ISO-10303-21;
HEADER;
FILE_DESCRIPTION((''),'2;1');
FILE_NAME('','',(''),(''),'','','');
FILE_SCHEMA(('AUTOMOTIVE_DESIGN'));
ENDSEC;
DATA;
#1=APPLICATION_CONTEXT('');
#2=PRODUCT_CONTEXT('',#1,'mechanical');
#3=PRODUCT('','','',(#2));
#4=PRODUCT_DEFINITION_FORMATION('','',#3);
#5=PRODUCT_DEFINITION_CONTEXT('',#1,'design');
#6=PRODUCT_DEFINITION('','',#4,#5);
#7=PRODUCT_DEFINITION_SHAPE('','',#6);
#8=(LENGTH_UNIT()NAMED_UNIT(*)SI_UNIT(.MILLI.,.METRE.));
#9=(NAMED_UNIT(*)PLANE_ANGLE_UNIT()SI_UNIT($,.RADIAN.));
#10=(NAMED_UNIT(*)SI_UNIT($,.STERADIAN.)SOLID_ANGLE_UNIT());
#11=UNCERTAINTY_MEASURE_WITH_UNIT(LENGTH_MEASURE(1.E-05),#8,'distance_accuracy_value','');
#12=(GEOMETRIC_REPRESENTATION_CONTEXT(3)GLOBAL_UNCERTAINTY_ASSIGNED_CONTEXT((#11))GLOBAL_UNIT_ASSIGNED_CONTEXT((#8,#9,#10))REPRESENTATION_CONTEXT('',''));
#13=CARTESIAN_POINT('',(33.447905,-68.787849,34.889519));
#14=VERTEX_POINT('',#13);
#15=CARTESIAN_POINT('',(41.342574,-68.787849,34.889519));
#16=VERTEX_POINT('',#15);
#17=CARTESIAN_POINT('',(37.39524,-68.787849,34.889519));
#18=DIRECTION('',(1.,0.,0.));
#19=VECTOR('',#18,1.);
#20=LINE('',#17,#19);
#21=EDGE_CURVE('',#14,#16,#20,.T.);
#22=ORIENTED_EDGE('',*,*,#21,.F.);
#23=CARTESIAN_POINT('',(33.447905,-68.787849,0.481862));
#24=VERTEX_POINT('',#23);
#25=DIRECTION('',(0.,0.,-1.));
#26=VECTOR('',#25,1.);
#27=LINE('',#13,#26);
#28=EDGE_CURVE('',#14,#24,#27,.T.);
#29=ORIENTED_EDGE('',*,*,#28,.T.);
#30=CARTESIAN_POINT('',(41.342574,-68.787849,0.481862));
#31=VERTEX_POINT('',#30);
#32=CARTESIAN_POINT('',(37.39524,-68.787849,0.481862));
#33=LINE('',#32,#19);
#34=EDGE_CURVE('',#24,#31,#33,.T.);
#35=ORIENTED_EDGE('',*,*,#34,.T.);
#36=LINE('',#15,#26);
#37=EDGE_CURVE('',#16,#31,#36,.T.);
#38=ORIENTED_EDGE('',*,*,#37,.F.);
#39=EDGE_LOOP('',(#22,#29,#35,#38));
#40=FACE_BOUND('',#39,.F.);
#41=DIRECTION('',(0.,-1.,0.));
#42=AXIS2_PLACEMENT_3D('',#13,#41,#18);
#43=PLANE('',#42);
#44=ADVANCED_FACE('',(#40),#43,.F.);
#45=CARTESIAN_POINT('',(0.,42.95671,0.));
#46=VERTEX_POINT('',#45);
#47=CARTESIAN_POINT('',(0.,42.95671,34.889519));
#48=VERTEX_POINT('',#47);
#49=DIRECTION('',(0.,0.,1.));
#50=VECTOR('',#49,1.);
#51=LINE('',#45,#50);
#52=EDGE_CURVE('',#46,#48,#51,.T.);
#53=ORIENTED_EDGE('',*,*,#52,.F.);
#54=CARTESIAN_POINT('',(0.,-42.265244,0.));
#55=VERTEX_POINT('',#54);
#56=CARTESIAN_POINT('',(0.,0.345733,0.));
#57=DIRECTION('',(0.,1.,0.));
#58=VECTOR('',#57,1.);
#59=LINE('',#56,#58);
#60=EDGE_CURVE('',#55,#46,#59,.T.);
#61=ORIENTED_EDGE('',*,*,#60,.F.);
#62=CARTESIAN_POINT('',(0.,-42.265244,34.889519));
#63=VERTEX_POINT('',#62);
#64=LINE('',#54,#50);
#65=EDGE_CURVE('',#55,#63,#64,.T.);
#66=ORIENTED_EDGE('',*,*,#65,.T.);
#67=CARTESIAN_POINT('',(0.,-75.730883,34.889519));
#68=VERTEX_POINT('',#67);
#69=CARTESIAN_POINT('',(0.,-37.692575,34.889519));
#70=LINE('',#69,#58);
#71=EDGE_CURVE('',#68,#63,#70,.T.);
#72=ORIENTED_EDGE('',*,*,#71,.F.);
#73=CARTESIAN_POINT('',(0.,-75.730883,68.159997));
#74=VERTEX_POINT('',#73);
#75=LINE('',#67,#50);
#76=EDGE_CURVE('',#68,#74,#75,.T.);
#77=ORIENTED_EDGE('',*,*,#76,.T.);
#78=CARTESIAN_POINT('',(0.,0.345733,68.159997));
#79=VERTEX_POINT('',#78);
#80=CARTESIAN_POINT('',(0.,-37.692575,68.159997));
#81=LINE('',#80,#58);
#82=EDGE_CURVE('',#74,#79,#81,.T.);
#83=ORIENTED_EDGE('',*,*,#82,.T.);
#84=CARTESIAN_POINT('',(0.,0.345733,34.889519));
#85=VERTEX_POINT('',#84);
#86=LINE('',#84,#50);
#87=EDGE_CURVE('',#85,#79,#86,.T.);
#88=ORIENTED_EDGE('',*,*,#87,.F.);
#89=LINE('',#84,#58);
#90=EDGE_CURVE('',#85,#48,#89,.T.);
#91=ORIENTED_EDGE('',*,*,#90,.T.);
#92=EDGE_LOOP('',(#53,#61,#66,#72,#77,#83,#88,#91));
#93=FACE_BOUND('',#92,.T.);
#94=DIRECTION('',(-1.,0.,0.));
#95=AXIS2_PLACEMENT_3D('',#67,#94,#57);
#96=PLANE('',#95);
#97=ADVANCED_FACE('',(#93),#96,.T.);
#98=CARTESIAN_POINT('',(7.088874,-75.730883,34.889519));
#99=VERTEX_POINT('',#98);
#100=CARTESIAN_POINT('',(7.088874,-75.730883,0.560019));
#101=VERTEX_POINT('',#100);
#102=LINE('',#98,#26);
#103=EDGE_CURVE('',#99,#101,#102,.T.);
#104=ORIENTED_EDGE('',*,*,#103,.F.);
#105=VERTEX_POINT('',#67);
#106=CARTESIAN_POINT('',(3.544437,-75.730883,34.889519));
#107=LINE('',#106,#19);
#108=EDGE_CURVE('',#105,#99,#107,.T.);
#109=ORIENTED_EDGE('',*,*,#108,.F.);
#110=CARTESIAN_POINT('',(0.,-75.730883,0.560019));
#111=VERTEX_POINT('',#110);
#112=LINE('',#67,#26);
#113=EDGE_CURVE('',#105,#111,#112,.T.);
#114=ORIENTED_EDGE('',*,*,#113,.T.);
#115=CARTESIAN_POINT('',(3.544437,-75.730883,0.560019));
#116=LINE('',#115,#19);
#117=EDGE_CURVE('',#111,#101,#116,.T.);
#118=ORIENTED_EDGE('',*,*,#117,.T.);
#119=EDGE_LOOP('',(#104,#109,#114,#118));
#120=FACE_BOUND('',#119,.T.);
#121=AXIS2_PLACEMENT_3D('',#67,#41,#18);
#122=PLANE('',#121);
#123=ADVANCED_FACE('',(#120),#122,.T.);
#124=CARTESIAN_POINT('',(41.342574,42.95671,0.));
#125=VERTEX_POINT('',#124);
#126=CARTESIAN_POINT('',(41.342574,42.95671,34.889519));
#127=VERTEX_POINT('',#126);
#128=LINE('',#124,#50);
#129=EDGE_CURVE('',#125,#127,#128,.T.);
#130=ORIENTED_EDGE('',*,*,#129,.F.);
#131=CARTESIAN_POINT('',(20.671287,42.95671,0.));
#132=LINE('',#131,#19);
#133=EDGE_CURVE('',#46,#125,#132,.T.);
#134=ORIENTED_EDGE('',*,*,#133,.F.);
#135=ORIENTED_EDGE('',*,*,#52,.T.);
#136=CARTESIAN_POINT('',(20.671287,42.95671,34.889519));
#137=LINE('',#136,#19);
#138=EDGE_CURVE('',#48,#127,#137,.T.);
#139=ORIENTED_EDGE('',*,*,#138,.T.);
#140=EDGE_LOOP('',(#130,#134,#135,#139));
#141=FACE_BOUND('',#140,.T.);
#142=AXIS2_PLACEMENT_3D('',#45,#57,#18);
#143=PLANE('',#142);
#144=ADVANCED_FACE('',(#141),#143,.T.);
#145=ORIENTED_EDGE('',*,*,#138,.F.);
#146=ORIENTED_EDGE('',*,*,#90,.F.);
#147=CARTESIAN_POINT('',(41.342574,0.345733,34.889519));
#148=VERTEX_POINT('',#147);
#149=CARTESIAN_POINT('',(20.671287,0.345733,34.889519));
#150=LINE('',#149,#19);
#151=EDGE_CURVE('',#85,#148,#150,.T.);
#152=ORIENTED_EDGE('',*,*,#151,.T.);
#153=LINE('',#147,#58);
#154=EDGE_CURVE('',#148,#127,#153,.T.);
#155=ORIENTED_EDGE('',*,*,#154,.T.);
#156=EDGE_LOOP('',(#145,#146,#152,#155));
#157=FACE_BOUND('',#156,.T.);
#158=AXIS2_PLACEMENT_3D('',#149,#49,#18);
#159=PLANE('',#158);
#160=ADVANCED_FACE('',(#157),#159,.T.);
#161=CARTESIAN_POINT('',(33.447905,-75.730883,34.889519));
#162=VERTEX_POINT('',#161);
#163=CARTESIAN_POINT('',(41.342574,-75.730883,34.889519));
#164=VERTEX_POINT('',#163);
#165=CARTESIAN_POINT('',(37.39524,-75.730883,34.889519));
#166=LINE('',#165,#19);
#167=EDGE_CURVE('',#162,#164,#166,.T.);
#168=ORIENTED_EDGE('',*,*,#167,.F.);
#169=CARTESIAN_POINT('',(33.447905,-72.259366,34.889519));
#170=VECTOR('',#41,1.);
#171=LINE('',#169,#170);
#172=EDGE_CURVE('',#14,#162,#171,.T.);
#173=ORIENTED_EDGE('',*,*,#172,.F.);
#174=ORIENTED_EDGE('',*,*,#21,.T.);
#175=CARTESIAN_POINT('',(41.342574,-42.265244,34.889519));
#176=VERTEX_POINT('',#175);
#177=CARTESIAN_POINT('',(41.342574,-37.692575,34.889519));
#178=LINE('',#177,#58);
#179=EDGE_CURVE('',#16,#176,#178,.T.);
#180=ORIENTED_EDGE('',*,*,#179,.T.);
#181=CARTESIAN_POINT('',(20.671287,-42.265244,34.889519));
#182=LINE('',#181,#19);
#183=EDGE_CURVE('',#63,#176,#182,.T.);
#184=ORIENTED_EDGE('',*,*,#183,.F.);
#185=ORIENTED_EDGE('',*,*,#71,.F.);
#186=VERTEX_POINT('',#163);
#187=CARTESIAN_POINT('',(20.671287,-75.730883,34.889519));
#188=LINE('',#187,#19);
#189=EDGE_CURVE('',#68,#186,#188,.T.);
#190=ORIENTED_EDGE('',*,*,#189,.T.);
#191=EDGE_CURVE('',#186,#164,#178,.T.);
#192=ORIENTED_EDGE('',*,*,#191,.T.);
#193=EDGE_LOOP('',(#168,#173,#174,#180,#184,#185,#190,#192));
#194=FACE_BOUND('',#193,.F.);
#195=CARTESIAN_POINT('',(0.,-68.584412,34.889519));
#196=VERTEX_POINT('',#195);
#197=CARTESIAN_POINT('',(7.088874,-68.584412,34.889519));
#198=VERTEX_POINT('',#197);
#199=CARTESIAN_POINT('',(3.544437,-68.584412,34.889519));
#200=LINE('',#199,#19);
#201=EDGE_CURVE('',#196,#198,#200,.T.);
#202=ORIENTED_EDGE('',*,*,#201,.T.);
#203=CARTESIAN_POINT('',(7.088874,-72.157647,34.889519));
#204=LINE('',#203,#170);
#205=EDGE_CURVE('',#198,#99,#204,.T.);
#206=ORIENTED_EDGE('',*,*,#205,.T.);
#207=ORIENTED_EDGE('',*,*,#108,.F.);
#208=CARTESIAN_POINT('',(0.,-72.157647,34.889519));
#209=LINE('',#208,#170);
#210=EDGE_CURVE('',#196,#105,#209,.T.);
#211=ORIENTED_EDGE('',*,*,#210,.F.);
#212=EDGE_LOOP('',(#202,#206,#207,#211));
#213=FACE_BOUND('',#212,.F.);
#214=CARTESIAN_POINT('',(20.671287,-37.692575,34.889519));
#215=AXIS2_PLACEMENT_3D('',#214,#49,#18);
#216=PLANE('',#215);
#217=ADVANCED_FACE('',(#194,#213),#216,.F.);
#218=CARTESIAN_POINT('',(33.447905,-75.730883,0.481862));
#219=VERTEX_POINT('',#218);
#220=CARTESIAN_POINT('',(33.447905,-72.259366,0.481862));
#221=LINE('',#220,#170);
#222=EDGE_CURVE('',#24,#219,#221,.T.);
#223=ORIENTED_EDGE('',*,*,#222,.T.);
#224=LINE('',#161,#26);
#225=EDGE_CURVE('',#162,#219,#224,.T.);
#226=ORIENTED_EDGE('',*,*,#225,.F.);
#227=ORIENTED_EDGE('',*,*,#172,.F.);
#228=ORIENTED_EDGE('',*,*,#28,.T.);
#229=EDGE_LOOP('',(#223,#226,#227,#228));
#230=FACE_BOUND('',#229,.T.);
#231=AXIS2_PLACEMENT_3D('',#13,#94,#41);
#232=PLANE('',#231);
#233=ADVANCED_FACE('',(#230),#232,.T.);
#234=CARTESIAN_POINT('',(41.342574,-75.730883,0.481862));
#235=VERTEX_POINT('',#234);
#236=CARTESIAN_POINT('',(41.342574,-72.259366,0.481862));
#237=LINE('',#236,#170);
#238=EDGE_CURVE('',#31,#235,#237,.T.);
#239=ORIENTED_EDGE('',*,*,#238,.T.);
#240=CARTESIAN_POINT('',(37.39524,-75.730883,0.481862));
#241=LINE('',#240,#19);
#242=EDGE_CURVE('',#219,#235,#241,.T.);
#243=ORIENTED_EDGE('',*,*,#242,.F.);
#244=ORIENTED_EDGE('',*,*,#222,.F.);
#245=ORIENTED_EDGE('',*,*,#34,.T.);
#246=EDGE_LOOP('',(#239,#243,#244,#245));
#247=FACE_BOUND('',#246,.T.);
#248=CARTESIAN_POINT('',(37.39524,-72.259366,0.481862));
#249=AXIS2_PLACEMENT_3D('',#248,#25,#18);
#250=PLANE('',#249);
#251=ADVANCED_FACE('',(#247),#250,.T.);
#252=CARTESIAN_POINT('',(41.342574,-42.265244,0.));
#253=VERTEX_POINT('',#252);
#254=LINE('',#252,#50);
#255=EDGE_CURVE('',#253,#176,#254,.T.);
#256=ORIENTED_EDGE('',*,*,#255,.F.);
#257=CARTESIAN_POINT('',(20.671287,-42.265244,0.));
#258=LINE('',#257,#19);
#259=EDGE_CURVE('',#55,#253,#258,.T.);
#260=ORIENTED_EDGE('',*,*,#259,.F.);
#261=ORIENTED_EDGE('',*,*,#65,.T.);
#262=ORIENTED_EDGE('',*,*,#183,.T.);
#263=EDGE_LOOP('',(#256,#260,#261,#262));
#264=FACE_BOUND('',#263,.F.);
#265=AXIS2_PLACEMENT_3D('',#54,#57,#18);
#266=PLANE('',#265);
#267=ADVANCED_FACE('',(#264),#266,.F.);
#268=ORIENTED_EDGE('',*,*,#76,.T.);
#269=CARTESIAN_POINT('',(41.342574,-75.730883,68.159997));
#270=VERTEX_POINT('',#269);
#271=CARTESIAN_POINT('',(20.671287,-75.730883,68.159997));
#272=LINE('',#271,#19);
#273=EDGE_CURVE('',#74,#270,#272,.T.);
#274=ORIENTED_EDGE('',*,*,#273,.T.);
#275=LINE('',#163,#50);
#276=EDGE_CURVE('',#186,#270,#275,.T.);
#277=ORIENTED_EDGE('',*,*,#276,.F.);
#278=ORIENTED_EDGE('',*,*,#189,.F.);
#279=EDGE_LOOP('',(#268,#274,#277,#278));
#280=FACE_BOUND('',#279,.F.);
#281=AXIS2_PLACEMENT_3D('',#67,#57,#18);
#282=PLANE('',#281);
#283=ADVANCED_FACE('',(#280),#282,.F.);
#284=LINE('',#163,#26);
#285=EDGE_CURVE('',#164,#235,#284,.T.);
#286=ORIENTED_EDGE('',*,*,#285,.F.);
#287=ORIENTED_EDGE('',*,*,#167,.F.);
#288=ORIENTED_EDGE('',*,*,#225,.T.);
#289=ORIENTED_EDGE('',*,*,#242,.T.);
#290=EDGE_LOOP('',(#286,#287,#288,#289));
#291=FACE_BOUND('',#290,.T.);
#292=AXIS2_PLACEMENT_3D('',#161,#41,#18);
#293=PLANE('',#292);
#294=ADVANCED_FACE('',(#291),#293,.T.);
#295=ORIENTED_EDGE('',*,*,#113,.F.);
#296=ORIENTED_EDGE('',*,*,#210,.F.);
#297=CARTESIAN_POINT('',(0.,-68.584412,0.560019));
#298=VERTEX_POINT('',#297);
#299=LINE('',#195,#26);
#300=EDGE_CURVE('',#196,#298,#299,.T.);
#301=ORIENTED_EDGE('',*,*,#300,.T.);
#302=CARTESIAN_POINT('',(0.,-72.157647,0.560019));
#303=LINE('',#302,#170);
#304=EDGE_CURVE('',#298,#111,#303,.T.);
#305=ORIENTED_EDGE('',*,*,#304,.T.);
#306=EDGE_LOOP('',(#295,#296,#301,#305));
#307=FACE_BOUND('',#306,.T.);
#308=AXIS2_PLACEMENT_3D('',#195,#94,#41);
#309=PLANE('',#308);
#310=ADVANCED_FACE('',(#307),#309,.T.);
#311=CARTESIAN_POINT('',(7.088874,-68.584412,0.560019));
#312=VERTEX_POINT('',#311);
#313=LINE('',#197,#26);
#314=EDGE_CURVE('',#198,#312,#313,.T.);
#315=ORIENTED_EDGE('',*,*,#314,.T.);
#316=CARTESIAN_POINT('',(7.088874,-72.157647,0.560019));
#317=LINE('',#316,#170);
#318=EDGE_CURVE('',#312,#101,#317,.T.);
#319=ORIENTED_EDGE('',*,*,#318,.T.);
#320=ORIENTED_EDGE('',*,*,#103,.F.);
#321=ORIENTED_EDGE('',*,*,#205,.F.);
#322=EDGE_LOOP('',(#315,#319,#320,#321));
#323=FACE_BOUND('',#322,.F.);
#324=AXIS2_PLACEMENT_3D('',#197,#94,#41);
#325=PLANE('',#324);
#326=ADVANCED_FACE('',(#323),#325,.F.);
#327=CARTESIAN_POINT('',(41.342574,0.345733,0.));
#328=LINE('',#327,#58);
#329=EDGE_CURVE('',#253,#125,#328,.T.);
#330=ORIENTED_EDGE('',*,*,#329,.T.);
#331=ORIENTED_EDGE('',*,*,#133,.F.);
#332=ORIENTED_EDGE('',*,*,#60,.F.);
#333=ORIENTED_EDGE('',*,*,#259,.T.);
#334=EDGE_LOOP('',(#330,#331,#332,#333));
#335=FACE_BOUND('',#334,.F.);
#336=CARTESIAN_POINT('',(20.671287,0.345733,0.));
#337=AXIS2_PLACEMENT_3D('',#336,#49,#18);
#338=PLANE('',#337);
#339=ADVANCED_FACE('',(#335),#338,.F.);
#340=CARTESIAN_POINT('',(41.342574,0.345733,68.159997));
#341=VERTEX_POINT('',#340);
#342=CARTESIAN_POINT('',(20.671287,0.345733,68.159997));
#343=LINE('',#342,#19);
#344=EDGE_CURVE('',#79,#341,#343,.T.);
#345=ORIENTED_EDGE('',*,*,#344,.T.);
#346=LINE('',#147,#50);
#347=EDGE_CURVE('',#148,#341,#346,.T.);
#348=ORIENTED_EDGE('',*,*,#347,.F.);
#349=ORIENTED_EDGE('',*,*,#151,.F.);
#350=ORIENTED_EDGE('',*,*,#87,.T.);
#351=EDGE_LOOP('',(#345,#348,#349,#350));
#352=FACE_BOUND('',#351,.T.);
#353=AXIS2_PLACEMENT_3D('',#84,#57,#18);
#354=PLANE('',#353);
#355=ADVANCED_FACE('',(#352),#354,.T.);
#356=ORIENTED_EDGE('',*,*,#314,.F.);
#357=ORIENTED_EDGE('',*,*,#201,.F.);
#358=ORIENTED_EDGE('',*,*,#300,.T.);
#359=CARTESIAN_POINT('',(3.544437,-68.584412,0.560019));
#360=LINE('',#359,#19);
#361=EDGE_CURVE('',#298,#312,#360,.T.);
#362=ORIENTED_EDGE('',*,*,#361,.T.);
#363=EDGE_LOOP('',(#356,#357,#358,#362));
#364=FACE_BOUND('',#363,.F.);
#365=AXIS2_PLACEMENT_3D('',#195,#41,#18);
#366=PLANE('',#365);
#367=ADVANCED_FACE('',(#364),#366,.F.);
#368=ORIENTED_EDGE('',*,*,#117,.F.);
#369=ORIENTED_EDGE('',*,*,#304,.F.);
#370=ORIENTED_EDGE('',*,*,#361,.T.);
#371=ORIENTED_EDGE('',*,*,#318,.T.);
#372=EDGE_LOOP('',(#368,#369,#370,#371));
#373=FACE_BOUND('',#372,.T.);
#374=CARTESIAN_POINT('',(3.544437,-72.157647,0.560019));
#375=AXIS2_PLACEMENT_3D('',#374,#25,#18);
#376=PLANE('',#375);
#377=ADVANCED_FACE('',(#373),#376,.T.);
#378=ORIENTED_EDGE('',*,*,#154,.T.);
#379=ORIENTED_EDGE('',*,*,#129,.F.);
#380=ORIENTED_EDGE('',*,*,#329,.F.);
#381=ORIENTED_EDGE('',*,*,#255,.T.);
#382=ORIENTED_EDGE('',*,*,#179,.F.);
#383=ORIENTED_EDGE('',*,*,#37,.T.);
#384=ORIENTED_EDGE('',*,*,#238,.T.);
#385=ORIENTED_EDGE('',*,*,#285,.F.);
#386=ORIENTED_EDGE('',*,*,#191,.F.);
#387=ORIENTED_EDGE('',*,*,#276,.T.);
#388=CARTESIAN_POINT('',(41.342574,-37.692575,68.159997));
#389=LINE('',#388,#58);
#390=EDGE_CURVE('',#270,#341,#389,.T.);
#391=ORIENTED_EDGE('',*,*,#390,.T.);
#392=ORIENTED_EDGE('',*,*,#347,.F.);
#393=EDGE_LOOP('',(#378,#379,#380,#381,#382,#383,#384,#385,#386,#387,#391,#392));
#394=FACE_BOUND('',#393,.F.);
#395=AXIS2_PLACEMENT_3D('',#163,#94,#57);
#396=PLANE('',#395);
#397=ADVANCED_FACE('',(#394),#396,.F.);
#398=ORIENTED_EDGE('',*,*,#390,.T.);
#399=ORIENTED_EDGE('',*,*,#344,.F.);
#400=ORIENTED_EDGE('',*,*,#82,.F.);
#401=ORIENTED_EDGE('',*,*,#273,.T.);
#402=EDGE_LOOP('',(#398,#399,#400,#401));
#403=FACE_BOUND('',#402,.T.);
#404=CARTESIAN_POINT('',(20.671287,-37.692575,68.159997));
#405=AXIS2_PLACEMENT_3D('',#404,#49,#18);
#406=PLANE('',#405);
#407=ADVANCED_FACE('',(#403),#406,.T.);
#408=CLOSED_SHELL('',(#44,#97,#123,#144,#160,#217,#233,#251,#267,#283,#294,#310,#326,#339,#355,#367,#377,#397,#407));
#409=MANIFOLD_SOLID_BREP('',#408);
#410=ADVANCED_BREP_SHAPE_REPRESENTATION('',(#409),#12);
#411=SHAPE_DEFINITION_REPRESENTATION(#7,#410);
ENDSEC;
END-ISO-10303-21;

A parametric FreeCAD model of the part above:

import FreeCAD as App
import Part
import Sketcher

doc = App.newDocument("Part")
body = doc.addObject("PartDesign::Body", "Body")

# Sketch on XY plane
sketch1 = doc.addObject("Sketcher::SketchObject", "Sketch")
body.addObject(sketch1)
sketch1.AttachmentSupport = (doc.XY_Plane, [""])
sketch1.MapMode = "FlatFace"
sketch1.addGeometry(Part.LineSegment(App.Vector(0, 42.95671, 0), App.Vector(0, -42.265244, 0)), False)
sketch1.addGeometry(Part.LineSegment(App.Vector(0, -42.265244, 0), App.Vector(41.342574, -42.265244, 0)), False)
sketch1.addGeometry(Part.LineSegment(App.Vector(41.342574, -42.265244, 0), App.Vector(41.342574, 42.95671, 0)), False)
sketch1.addGeometry(Part.LineSegment(App.Vector(41.342574, 42.95671, 0), App.Vector(0, 42.95671, 0)), False)
sketch1.addConstraint(Sketcher.Constraint("Coincident", 0, 2, 1, 1))
sketch1.addConstraint(Sketcher.Constraint("Coincident", 1, 2, 2, 1))
sketch1.addConstraint(Sketcher.Constraint("Coincident", 2, 2, 3, 1))
sketch1.addConstraint(Sketcher.Constraint("Coincident", 3, 2, 0, 1))
sketch1.addConstraint(Sketcher.Constraint("Vertical", 0))
sketch1.addConstraint(Sketcher.Constraint("Horizontal", 1))
sketch1.addConstraint(Sketcher.Constraint("Vertical", 2))
sketch1.addConstraint(Sketcher.Constraint("Horizontal", 3))
sketch1.addConstraint(Sketcher.Constraint("PointOnObject", 0, 2, -2))
sketch1.addConstraint(Sketcher.Constraint("DistanceX", 1, 1, 1, 2, 41.342575))
sketch1.addConstraint(Sketcher.Constraint("DistanceY", 0, 2, 0, 1, 85.221954))
sketch1.addConstraint(Sketcher.Constraint("DistanceY", -1, 1, 2, 2, 42.95671))
pad1 = doc.addObject("PartDesign::Pad", "Pad")
body.addObject(pad1)
pad1.Profile = sketch1
pad1.Length = 34.889519

# Sketch on XY plane
sketch2 = doc.addObject("Sketcher::SketchObject", "Sketch001")
body.addObject(sketch2)
sketch2.AttachmentSupport = (doc.XY_Plane, [""])
sketch2.MapMode = "FlatFace"
sketch2.AttachmentOffset = App.Placement(App.Vector(0, 0, 34.889519), App.Rotation())
sketch2.addGeometry(Part.LineSegment(App.Vector(0, 0.345733, 0), App.Vector(0, -75.730883, 0)), False)
sketch2.addGeometry(Part.LineSegment(App.Vector(0, -75.730883, 0), App.Vector(41.342574, -75.730883, 0)), False)
sketch2.addGeometry(Part.LineSegment(App.Vector(41.342574, -75.730883, 0), App.Vector(41.342574, 0.345733, 0)), False)
sketch2.addGeometry(Part.LineSegment(App.Vector(41.342574, 0.345733, 0), App.Vector(0, 0.345733, 0)), False)
sketch2.addConstraint(Sketcher.Constraint("Coincident", 0, 2, 1, 1))
sketch2.addConstraint(Sketcher.Constraint("Coincident", 1, 2, 2, 1))
sketch2.addConstraint(Sketcher.Constraint("Coincident", 2, 2, 3, 1))
sketch2.addConstraint(Sketcher.Constraint("Coincident", 3, 2, 0, 1))
sketch2.addConstraint(Sketcher.Constraint("Vertical", 0))
sketch2.addConstraint(Sketcher.Constraint("Horizontal", 1))
sketch2.addConstraint(Sketcher.Constraint("Vertical", 2))
sketch2.addConstraint(Sketcher.Constraint("Horizontal", 3))
sketch2.addConstraint(Sketcher.Constraint("PointOnObject", 0, 2, -2))
sketch2.addConstraint(Sketcher.Constraint("DistanceX", 1, 1, 1, 2, 41.342575))
sketch2.addConstraint(Sketcher.Constraint("DistanceY", 0, 2, 0, 1, 76.076616))
sketch2.addConstraint(Sketcher.Constraint("DistanceY", 0, 2, -1, 1, 75.730883))
pad2 = doc.addObject("PartDesign::Pad", "Pad001")
body.addObject(pad2)
pad2.Profile = sketch2
pad2.Length = 33.270478

# Sketch on XY plane
sketch3 = doc.addObject("Sketcher::SketchObject", "Sketch002")
body.addObject(sketch3)
sketch3.AttachmentSupport = (doc.XY_Plane, [""])
sketch3.MapMode = "FlatFace"
sketch3.AttachmentOffset = App.Placement(App.Vector(0, 0, 34.889519), App.Rotation())
sketch3.addGeometry(Part.LineSegment(App.Vector(0, -75.730883, 0), App.Vector(0, -68.584412, 0)), False)
sketch3.addGeometry(Part.LineSegment(App.Vector(0, -68.584412, 0), App.Vector(7.088874, -68.584412, 0)), False)
sketch3.addGeometry(Part.LineSegment(App.Vector(7.088874, -68.584412, 0), App.Vector(7.088874, -75.730883, 0)), False)
sketch3.addGeometry(Part.LineSegment(App.Vector(7.088874, -75.730883, 0), App.Vector(0, -75.730883, 0)), False)
sketch3.addConstraint(Sketcher.Constraint("Coincident", 0, 2, 1, 1))
sketch3.addConstraint(Sketcher.Constraint("Coincident", 1, 2, 2, 1))
sketch3.addConstraint(Sketcher.Constraint("Coincident", 2, 2, 3, 1))
sketch3.addConstraint(Sketcher.Constraint("Coincident", 3, 2, 0, 1))
sketch3.addConstraint(Sketcher.Constraint("Vertical", 0))
sketch3.addConstraint(Sketcher.Constraint("Horizontal", 1))
sketch3.addConstraint(Sketcher.Constraint("Vertical", 2))
sketch3.addConstraint(Sketcher.Constraint("Horizontal", 3))
sketch3.addConstraint(Sketcher.Constraint("PointOnObject", 0, 2, -2))
sketch3.addConstraint(Sketcher.Constraint("DistanceY", 0, 1, 0, 2, 7.146471))
sketch3.addConstraint(Sketcher.Constraint("DistanceX", 1, 1, 1, 2, 7.088874))
sketch3.addConstraint(Sketcher.Constraint("DistanceY", 0, 2, -1, 1, 68.584412))
pad3 = doc.addObject("PartDesign::Pad", "Pad002")
body.addObject(pad3)
pad3.Profile = sketch3
pad3.Length = 34.3295
pad3.Reversed = True

# Sketch on XY plane
sketch4 = doc.addObject("Sketcher::SketchObject", "Sketch003")
body.addObject(sketch4)
sketch4.AttachmentSupport = (doc.XY_Plane, [""])
sketch4.MapMode = "FlatFace"
sketch4.AttachmentOffset = App.Placement(App.Vector(0, 0, 34.889519), App.Rotation())
sketch4.addGeometry(Part.LineSegment(App.Vector(33.447905, -75.730883, 0), App.Vector(33.447905, -68.787849, 0)), False)
sketch4.addGeometry(Part.LineSegment(App.Vector(33.447905, -68.787849, 0), App.Vector(41.342574, -68.787849, 0)), False)
sketch4.addGeometry(Part.LineSegment(App.Vector(41.342574, -68.787849, 0), App.Vector(41.342574, -75.730883, 0)), False)
sketch4.addGeometry(Part.LineSegment(App.Vector(41.342574, -75.730883, 0), App.Vector(33.447905, -75.730883, 0)), False)
sketch4.addConstraint(Sketcher.Constraint("Coincident", 0, 2, 1, 1))
sketch4.addConstraint(Sketcher.Constraint("Coincident", 1, 2, 2, 1))
sketch4.addConstraint(Sketcher.Constraint("Coincident", 2, 2, 3, 1))
sketch4.addConstraint(Sketcher.Constraint("Coincident", 3, 2, 0, 1))
sketch4.addConstraint(Sketcher.Constraint("Vertical", 0))
sketch4.addConstraint(Sketcher.Constraint("Horizontal", 1))
sketch4.addConstraint(Sketcher.Constraint("Vertical", 2))
sketch4.addConstraint(Sketcher.Constraint("Horizontal", 3))
sketch4.addConstraint(Sketcher.Constraint("DistanceX", 1, 1, 1, 2, 7.894669))
sketch4.addConstraint(Sketcher.Constraint("DistanceY", 0, 1, 0, 2, 6.943033))
sketch4.addConstraint(Sketcher.Constraint("DistanceY", 0, 2, -1, 1, 68.787849))
sketch4.addConstraint(Sketcher.Constraint("DistanceX", -1, 1, 0, 2, 33.447905))
pad4 = doc.addObject("PartDesign::Pad", "Pad003")
body.addObject(pad4)
pad4.Profile = sketch4
pad4.Length = 34.407657
pad4.Reversed = True

doc.recompute()
